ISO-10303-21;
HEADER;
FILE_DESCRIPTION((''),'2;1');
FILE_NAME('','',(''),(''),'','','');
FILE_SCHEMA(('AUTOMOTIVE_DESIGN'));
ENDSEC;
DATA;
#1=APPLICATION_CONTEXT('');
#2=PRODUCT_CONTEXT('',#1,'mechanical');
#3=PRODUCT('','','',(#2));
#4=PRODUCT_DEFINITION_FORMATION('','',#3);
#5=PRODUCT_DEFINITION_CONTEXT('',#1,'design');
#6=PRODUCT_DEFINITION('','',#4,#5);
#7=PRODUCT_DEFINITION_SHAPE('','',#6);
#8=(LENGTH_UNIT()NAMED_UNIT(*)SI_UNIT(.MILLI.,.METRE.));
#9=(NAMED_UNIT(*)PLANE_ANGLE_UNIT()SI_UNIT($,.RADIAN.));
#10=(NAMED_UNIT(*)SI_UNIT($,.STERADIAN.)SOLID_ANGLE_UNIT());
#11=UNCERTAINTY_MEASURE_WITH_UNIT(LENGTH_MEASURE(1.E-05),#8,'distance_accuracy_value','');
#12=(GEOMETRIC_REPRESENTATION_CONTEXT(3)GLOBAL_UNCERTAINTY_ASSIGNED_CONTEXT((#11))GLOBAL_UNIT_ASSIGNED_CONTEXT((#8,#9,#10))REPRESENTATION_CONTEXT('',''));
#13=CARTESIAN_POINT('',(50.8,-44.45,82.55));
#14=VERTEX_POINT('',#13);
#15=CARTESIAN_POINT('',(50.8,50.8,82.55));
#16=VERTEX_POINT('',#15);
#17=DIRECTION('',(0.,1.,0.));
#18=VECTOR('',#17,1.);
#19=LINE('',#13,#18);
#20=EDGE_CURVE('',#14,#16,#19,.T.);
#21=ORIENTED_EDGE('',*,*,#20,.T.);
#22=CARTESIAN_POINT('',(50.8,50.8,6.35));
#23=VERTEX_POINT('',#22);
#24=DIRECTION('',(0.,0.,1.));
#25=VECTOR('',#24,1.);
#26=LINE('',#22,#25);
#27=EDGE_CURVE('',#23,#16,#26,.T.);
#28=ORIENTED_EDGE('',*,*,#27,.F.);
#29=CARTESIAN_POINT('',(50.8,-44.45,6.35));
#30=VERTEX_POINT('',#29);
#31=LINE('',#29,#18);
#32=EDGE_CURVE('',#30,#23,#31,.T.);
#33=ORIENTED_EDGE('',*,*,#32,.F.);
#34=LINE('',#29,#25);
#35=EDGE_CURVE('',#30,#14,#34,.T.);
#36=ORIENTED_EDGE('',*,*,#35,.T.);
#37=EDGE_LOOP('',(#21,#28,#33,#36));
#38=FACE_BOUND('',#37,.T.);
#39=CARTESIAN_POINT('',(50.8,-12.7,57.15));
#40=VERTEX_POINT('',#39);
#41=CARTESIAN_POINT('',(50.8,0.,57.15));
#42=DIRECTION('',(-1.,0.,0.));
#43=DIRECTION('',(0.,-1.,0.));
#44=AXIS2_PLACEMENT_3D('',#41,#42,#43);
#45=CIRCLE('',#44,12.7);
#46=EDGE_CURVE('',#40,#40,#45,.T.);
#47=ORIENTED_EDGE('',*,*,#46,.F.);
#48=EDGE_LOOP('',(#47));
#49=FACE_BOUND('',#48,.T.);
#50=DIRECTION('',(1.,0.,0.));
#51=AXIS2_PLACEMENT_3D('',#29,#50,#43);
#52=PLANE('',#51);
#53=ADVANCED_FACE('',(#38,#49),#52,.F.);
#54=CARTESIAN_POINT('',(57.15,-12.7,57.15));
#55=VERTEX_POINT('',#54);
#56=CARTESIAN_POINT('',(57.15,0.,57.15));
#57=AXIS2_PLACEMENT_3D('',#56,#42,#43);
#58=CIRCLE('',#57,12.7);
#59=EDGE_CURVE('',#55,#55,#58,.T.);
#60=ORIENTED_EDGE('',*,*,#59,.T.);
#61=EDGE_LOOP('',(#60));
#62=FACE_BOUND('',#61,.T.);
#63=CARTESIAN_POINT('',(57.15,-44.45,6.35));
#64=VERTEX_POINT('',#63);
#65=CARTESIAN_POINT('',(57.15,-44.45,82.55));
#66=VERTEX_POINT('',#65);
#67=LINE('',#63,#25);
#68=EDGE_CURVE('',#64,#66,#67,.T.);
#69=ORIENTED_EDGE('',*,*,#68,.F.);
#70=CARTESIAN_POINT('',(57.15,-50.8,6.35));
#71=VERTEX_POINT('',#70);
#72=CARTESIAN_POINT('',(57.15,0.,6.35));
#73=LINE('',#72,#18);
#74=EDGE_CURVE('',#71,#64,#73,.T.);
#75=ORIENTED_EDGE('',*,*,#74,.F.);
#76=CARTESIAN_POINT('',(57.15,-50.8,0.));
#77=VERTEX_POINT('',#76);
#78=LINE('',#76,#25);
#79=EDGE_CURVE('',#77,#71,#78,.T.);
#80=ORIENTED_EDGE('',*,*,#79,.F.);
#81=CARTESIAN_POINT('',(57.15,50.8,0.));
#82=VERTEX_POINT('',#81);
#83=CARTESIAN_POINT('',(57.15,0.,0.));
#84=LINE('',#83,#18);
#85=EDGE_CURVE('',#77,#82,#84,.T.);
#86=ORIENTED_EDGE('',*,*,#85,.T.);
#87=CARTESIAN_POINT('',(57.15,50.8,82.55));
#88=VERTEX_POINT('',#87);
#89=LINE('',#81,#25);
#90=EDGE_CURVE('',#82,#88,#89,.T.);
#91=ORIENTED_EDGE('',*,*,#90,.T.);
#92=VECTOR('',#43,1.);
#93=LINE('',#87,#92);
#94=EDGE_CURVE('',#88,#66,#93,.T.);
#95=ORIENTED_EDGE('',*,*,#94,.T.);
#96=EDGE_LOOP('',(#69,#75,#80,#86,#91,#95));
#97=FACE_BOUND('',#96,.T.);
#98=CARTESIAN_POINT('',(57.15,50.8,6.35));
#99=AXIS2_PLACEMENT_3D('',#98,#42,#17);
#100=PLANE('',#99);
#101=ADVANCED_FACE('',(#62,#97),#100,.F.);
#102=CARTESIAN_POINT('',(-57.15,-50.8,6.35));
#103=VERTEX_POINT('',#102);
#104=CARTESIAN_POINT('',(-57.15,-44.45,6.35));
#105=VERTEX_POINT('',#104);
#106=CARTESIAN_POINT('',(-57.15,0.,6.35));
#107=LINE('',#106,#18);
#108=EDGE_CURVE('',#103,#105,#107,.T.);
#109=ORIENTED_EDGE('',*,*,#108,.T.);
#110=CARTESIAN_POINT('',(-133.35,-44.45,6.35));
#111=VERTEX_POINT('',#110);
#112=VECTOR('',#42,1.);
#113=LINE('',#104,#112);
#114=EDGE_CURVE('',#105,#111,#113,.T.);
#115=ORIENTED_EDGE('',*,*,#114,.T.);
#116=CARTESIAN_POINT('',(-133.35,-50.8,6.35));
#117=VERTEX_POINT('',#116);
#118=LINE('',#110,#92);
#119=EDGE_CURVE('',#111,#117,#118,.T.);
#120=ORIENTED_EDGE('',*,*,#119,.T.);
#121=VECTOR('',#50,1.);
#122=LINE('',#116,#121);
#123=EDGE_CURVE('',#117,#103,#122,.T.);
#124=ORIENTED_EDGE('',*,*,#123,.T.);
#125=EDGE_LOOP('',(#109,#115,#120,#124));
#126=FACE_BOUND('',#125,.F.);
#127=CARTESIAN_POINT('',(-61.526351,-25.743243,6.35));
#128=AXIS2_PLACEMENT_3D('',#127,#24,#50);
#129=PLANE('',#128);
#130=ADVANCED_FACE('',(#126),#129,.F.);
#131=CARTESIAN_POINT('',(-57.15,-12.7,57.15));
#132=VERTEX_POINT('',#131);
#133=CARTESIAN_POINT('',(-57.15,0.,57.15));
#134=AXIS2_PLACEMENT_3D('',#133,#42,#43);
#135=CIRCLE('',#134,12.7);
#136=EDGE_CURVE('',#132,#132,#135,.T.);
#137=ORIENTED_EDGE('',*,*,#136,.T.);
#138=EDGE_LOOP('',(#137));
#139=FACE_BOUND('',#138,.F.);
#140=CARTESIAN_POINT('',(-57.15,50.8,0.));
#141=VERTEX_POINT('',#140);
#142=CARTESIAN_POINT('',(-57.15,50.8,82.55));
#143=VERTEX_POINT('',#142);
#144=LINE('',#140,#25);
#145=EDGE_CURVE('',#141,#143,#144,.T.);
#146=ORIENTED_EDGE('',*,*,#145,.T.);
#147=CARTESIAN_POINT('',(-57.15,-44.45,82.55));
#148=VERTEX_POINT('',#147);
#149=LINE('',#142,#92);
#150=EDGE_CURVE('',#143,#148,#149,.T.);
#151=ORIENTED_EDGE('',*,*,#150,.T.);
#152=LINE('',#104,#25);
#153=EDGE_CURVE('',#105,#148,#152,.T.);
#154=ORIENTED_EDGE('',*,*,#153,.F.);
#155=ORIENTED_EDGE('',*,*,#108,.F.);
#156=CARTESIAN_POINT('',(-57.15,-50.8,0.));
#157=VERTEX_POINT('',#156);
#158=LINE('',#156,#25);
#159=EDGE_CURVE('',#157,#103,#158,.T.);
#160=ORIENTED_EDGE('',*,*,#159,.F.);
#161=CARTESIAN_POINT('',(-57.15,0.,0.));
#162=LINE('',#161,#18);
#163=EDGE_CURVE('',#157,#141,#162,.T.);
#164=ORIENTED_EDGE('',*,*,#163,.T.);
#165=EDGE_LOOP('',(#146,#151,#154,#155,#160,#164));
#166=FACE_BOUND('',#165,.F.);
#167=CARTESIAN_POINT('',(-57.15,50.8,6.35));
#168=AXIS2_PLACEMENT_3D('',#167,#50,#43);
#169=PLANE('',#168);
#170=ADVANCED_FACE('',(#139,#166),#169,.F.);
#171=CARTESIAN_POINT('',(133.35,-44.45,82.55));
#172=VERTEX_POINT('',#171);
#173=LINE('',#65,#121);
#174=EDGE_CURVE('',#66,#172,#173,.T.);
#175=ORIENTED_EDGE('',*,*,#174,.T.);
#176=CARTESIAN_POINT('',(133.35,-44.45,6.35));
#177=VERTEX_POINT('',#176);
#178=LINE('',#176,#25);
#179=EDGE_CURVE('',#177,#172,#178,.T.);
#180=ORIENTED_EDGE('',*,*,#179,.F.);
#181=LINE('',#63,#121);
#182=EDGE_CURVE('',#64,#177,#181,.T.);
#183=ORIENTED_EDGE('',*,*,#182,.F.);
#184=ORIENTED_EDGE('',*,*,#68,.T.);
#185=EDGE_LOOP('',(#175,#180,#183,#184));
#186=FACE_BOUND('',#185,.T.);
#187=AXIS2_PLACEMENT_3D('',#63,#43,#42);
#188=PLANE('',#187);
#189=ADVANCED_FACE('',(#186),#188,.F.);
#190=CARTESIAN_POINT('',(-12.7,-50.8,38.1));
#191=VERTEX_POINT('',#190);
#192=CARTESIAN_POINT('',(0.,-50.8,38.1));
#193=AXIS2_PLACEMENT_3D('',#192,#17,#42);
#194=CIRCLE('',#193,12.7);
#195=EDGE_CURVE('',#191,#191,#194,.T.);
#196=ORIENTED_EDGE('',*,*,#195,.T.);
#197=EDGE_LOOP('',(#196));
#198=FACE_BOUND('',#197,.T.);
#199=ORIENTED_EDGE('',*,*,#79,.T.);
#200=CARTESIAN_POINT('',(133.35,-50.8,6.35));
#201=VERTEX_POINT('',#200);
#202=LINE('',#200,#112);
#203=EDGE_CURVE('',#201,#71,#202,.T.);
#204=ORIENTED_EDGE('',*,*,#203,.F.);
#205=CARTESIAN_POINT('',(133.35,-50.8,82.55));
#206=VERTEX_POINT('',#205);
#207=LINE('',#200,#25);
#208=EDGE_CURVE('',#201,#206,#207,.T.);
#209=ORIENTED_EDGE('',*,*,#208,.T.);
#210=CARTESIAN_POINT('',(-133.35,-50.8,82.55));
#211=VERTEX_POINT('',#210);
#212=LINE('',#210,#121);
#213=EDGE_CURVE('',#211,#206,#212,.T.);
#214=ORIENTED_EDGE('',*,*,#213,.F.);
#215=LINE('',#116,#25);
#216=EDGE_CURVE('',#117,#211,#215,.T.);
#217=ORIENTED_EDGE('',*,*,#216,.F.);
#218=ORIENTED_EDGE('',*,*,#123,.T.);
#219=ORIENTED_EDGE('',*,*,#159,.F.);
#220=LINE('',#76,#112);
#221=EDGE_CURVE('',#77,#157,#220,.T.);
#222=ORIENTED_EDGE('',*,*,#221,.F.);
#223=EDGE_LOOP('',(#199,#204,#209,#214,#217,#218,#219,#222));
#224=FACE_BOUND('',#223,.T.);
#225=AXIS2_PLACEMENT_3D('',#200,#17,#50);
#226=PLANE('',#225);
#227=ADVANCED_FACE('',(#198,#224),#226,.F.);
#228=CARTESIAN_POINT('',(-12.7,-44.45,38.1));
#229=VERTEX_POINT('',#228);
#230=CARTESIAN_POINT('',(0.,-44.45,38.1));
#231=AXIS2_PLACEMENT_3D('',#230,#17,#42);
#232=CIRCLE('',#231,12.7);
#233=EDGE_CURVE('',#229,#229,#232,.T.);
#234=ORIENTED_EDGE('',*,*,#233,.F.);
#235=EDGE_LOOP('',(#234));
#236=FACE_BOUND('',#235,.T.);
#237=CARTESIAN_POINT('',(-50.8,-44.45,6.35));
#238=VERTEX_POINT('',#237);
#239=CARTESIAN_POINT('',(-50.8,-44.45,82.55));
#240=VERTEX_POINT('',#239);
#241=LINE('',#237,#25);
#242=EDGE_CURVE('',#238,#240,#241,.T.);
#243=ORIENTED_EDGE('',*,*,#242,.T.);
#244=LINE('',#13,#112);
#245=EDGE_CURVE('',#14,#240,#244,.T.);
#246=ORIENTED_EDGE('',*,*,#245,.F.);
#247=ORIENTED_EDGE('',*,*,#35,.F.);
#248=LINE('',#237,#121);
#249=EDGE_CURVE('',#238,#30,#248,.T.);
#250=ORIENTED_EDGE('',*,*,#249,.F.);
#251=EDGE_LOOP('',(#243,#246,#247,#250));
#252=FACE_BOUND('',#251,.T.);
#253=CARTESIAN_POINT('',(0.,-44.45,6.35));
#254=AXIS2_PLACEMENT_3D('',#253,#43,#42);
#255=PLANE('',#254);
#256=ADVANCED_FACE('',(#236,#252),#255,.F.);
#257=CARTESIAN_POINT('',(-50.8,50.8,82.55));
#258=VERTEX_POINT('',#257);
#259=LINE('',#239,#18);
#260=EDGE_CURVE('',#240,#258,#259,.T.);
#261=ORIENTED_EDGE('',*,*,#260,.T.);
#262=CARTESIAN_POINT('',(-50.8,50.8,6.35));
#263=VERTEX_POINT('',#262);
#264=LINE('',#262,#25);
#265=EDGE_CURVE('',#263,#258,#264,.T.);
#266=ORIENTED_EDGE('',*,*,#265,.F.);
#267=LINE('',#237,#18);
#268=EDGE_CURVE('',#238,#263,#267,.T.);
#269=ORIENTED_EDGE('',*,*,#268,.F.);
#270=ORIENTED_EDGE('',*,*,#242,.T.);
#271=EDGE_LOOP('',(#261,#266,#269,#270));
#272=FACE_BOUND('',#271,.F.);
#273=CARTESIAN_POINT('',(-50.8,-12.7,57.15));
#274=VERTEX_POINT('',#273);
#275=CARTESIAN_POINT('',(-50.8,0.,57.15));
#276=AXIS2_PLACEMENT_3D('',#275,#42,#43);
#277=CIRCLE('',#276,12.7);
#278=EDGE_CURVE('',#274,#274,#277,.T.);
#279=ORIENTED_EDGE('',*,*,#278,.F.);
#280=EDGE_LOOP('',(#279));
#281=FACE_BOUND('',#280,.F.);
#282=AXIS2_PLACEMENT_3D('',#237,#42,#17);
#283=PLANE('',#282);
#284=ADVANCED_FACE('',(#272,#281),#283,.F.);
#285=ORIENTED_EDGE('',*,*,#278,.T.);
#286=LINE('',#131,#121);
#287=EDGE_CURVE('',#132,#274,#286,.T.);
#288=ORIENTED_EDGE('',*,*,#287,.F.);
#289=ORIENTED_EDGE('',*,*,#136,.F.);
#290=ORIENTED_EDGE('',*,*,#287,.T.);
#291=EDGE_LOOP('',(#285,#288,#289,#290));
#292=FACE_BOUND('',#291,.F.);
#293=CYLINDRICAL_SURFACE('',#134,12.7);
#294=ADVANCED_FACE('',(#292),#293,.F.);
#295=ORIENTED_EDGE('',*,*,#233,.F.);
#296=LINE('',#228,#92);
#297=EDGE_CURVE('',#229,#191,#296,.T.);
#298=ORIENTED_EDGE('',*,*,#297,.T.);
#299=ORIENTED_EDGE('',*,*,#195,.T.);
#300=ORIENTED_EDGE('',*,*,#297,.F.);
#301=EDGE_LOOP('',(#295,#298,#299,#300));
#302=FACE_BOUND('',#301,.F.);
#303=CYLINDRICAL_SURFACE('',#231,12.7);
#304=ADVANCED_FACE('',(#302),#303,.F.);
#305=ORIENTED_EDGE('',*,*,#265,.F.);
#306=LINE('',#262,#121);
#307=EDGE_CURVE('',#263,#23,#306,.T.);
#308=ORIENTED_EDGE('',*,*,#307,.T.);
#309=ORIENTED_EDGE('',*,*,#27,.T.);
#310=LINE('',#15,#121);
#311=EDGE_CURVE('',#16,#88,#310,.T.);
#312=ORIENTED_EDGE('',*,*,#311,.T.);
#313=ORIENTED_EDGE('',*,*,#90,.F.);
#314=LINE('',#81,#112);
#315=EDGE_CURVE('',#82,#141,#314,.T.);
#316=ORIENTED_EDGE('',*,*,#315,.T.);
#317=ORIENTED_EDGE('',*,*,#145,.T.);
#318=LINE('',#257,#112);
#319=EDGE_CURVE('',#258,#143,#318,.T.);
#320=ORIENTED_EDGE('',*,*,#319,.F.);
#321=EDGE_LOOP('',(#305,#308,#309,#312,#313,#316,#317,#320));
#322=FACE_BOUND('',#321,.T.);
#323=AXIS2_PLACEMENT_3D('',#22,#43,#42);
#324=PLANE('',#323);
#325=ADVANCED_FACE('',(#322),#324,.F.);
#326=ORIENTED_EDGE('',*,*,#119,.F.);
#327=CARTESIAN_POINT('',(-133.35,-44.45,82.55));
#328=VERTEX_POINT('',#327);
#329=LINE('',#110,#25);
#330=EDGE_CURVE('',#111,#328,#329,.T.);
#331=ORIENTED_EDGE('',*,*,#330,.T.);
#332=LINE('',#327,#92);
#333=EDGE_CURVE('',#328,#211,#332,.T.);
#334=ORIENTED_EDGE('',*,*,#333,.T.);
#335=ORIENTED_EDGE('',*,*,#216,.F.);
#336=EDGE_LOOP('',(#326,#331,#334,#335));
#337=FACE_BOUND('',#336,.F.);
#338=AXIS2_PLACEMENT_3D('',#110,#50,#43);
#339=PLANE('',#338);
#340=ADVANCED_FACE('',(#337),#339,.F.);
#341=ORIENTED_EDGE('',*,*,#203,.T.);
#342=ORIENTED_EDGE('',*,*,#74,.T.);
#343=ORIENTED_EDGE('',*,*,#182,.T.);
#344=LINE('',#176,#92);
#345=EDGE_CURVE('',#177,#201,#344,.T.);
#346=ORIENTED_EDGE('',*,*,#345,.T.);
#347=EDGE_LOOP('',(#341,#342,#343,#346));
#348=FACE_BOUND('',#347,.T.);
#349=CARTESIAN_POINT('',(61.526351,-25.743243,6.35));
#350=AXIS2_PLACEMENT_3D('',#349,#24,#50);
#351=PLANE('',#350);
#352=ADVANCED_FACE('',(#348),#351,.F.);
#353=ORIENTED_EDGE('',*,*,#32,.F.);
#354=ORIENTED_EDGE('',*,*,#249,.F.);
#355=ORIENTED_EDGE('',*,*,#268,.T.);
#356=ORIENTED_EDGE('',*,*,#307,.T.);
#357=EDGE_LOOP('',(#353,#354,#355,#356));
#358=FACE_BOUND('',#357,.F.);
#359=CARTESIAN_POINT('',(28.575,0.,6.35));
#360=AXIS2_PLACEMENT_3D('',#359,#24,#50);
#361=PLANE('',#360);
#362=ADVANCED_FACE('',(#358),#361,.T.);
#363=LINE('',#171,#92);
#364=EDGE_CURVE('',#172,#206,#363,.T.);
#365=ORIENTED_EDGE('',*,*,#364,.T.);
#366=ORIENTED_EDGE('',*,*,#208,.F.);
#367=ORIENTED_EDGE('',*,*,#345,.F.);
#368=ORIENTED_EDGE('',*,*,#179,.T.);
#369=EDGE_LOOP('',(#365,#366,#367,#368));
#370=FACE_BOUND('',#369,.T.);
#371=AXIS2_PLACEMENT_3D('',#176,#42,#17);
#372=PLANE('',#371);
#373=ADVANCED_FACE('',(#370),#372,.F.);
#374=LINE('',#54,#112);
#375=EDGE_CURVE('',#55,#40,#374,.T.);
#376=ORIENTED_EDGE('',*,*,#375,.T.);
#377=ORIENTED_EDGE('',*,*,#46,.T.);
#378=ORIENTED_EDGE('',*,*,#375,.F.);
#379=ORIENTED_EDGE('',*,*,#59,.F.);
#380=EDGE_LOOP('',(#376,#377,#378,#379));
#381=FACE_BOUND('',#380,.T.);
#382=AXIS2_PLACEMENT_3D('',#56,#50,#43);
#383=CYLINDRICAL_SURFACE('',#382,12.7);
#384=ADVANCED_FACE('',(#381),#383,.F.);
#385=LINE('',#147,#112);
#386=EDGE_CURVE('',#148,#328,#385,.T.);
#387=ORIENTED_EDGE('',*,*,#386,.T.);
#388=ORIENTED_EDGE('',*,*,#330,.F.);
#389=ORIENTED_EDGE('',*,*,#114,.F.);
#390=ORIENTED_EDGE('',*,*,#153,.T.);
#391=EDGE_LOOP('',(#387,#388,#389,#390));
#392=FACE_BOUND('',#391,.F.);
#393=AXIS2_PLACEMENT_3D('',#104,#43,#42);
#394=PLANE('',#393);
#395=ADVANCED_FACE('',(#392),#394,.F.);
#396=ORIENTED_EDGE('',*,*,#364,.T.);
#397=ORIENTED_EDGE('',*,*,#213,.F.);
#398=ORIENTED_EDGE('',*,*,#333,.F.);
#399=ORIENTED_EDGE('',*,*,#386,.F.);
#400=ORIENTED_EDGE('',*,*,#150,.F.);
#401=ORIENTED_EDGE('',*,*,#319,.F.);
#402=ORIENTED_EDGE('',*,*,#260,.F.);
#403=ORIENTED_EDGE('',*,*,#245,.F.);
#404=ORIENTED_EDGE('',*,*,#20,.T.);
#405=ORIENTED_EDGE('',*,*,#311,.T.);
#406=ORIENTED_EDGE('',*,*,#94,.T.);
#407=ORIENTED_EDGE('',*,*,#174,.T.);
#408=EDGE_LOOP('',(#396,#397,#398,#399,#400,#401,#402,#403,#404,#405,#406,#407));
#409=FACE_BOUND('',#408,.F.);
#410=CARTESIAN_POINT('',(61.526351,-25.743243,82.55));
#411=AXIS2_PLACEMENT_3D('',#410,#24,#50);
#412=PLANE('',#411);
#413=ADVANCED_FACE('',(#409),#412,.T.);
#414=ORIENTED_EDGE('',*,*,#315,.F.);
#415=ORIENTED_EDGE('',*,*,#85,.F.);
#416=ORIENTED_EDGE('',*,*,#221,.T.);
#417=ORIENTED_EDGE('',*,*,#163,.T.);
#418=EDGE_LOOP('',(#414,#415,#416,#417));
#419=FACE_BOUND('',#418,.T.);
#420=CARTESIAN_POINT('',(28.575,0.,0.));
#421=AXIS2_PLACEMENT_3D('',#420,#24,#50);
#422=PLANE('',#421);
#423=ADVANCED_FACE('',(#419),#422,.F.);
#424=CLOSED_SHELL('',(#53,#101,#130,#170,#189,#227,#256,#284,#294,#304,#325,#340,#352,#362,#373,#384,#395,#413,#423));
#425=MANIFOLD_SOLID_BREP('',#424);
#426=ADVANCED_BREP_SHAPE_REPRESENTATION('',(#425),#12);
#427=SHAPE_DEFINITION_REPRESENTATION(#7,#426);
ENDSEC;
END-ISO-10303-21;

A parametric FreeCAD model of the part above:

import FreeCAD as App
import Part
import Sketcher

V = App.Vector
Q = App.Units.Quantity


def add_polygon(sketch, points):
    """Adds a closed chain of lines whose ends are joined by coincident constraints."""
    first, n = sketch.GeometryCount, len(points)
    for a, b in zip(points, points[1:] + points[:1]):
        sketch.addGeometry(Part.LineSegment(App.Vector(*a, 0), App.Vector(*b, 0)), False)
    for i in range(n):
        sketch.addConstraint(Sketcher.Constraint("Coincident", first + i, 2, first + (i + 1) % n, 1))

doc = App.newDocument("Part")
body = doc.addObject("PartDesign::Body", "Body")

# Sketch on XY plane
sketch1 = doc.addObject("Sketcher::SketchObject", "Sketch")
body.addObject(sketch1)
sketch1.AttachmentSupport = (doc.XY_Plane, [""])
sketch1.MapMode = "FlatFace"
add_polygon(sketch1, [(-57, 51), (-57, -51), (0, -51), (0, 51)])  # lines 0-3
sketch1.addConstraint([
    Sketcher.Constraint("Vertical", 0),
    Sketcher.Constraint("Horizontal", 1),
    Sketcher.Constraint("Vertical", 2),
    Sketcher.Constraint("Horizontal", 3),
    Sketcher.Constraint("Symmetric", 1, 2, 2, 2, -1, 1),
    Sketcher.Constraint("DistanceY", 0, 2, 0, 1, Q("4 in")),
    Sketcher.Constraint("DistanceX", 1, 1, 1, 2, Q("2.25 in")),
])
pad1 = doc.addObject("PartDesign::Pad", "Pad")
body.addObject(pad1)
pad1.Profile = sketch1
pad1.Length = Q("0.25 in")

# Sketch on XY plane
sketch2 = doc.addObject("Sketcher::SketchObject", "Sketch001")
body.addObject(sketch2)
sketch2.AttachmentSupport = (doc.XY_Plane, [""])
sketch2.MapMode = "FlatFace"
sketch2.AttachmentOffset = App.Placement(V(0, 0, 0.25 * 25.4), App.Rotation())
add_polygon(sketch2, [(-51, 51), (-57, 51), (-57, -44), (-133, -44), (-133, -51), (0, -51), (0, -44), (-51, -44)])  # lines 0-7
sketch2.addConstraint([
    Sketcher.Constraint("Horizontal", 0),
    Sketcher.Constraint("Vertical", 1),
    Sketcher.Constraint("Horizontal", 2),
    Sketcher.Constraint("Vertical", 3),
    Sketcher.Constraint("Horizontal", 4),
    Sketcher.Constraint("Vertical", 5),
    Sketcher.Constraint("Horizontal", 6),
    Sketcher.Constraint("Vertical", 7),
    Sketcher.Constraint("PointOnObject", 4, 2, -2),
    Sketcher.Constraint("Horizontal", 2, 2, 5, 2),
    Sketcher.Constraint("Equal", 0, 3),
    Sketcher.Constraint("DistanceX", 2, 2, 2, 1, Q("3 in")),
    Sketcher.Constraint("DistanceX", 6, 2, 6, 1, Q("2 in")),
    Sketcher.Constraint("DistanceY", -1, 1, 0, 2, Q("2 in")),
    Sketcher.Constraint("DistanceY", 3, 2, -1, 1, Q("2 in")),
    Sketcher.Constraint("DistanceX", 0, 2, 0, 1, Q("0.25 in")),
])
pad2 = doc.addObject("PartDesign::Pad", "Pad001")
body.addObject(pad2)
pad2.Profile = sketch2
pad2.Length = Q("3 in")

# Sketch on YZ plane
sketch3 = doc.addObject("Sketcher::SketchObject", "Sketch002")
body.addObject(sketch3)
sketch3.AttachmentSupport = (doc.YZ_Plane, [""])
sketch3.MapMode = "FlatFace"
sketch3.AttachmentOffset = App.Placement(V(0, 0, -2.25 * 25.4), App.Rotation())
sketch3.addGeometry(Part.Circle(V(0, 57, 0), V(0, 0, 1), 13), False)
sketch3.addConstraint([
    Sketcher.Constraint("PointOnObject", 0, 3, -2),
    Sketcher.Constraint("Diameter", 0, Q("1 in")),
    Sketcher.Constraint("DistanceY", -1, 1, 0, 3, Q("2.25 in")),
])
pocket1 = doc.addObject("PartDesign::Pocket", "Pocket")
body.addObject(pocket1)
pocket1.Profile = sketch3
pocket1.Type = "ThroughAll"
pocket1.Reversed = True
body2 = doc.addObject("PartDesign::Body", "Body001")
doc.recompute()

body2.BaseFeature = body
doc.recompute()

mirroring = doc.addObject("Part::Mirroring", "Mirroring")
mirroring.Source = body
mirroring.Base = V(0, 0, 0)
mirroring.Normal = V(1, 0, 0)
body3 = doc.addObject("PartDesign::Body", "Body002")
body3.BaseFeature = mirroring
boolean = doc.addObject("PartDesign::Boolean", "Boolean")
body2.addObject(boolean)
boolean.Type = "Fuse"
boolean.addObjects([body3])
doc.recompute()

# Sketch on XZ plane
sketch4 = doc.addObject("Sketcher::SketchObject", "Sketch003")
body2.addObject(sketch4)
sketch4.AttachmentSupport = (doc.getObject("XZ_Plane001"), [""])
sketch4.MapMode = "FlatFace"
sketch4.AttachmentOffset = App.Placement(V(0, 0, 1.75 * 25.4), App.Rotation())
sketch4.addGeometry(Part.Circle(V(0, 38, 0), V(0, 0, 1), 13), False)
sketch4.addConstraint([
    Sketcher.Constraint("PointOnObject", 0, 3, -2),
    Sketcher.Constraint("Diameter", 0, Q("1 in")),
    Sketcher.Constraint("DistanceY", -1, 1, 0, 3, Q("1.5 in")),
])
pocket2 = doc.addObject("PartDesign::Pocket", "Pocket001")
body2.addObject(pocket2)
pocket2.Profile = sketch4
pocket2.Type = "ThroughAll"
pocket2.Reversed = True
mirroring.Visibility = False

doc.recompute()
